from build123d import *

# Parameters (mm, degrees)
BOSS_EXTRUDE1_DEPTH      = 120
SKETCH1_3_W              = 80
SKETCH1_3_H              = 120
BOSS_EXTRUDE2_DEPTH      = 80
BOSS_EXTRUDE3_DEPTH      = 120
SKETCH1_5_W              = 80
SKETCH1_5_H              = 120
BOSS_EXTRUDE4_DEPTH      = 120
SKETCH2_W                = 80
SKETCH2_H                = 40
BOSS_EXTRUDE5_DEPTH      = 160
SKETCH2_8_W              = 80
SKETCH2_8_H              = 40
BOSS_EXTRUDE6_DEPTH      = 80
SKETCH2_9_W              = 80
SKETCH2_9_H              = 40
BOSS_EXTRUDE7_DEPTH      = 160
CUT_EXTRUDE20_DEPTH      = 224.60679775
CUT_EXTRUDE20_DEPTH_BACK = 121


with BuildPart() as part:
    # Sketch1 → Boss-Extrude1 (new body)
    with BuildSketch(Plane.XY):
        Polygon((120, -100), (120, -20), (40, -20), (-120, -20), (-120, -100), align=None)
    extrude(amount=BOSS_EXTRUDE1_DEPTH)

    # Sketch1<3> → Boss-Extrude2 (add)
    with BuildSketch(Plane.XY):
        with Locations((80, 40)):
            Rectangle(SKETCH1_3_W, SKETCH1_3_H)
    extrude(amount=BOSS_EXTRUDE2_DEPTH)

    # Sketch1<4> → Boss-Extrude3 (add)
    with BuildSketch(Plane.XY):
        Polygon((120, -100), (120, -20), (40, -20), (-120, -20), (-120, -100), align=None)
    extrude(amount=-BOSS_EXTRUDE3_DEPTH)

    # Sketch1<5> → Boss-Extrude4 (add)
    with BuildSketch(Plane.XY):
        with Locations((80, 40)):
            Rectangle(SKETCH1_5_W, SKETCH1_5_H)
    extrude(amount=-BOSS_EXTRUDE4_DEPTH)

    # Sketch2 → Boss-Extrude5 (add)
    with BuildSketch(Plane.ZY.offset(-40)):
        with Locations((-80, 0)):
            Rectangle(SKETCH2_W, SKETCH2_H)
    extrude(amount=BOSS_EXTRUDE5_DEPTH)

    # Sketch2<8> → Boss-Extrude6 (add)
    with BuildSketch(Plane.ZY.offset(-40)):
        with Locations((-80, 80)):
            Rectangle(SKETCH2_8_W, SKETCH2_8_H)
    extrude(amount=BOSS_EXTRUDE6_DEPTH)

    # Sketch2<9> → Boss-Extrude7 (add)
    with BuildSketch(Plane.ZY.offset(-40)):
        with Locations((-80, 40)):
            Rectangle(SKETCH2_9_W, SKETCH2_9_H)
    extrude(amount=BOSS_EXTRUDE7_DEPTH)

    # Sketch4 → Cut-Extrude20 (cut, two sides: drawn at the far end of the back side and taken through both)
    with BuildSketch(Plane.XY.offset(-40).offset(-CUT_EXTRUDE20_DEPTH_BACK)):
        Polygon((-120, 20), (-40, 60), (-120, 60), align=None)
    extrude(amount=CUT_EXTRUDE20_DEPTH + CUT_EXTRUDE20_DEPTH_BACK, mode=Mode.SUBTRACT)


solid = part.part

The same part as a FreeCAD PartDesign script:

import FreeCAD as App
import Part
import Sketcher
Q = App.Units.Quantity


def add_polygon(sketch, points):
    """Adds a closed chain of lines whose ends are joined by coincident constraints."""
    first, n = sketch.GeometryCount, len(points)
    for a, b in zip(points, points[1:] + points[:1]):
        sketch.addGeometry(Part.LineSegment(App.Vector(*a, 0), App.Vector(*b, 0)), False)
    for i in range(n):
        sketch.addConstraint(Sketcher.Constraint("Coincident", first + i, 2, first + (i + 1) % n, 1))

doc = App.newDocument("Part")
body = doc.addObject("PartDesign::Body", "Body")

# Sketch on XY plane
sketch1 = doc.addObject("Sketcher::SketchObject", "Sketch")
body.addObject(sketch1)
sketch1.AttachmentSupport = (doc.XY_Plane, [""])
sketch1.MapMode = "FlatFace"
add_polygon(sketch1, [(120, -100), (120, -20), (-120, -20), (-120, -100)])  # lines 0-3
sketch1.addConstraint(Sketcher.Constraint("Vertical", 0))
sketch1.addConstraint(Sketcher.Constraint("Horizontal", 1))
sketch1.addConstraint(Sketcher.Constraint("Vertical", 2))
sketch1.addConstraint(Sketcher.Constraint("Horizontal", 3))
sketch1.addConstraint(Sketcher.Constraint("DistanceX", 1, 2, 1, 1, Q("240 mm")))
sketch1.addConstraint(Sketcher.Constraint("DistanceY", 0, 1, 0, 2, Q("80 mm")))
sketch1.addConstraint(Sketcher.Constraint("DistanceX", -1, 1, 0, 2, Q("120 mm")))
sketch1.addConstraint(Sketcher.Constraint("DistanceY", 0, 2, -1, 1, Q("20 mm")))
pad1 = doc.addObject("PartDesign::Pad", "Pad")
body.addObject(pad1)
pad1.Profile = sketch1
pad1.Length = 120

# Sketch on XY plane
sketch2 = doc.addObject("Sketcher::SketchObject", "Sketch001")
body.addObject(sketch2)
sketch2.AttachmentSupport = (doc.XY_Plane, [""])
sketch2.MapMode = "FlatFace"
add_polygon(sketch2, [(40, 100), (40, -20), (120, -20), (120, 100)])  # lines 0-3
sketch2.addConstraint(Sketcher.Constraint("Vertical", 0))
sketch2.addConstraint(Sketcher.Constraint("Horizontal", 1))
sketch2.addConstraint(Sketcher.Constraint("Vertical", 2))
sketch2.addConstraint(Sketcher.Constraint("Horizontal", 3))
sketch2.addConstraint(Sketcher.Constraint("DistanceX", 1, 1, 1, 2, Q("80 mm")))
sketch2.addConstraint(Sketcher.Constraint("DistanceY", 0, 2, 0, 1, Q("120 mm")))
sketch2.addConstraint(Sketcher.Constraint("DistanceX", -1, 1, 0, 2, Q("40 mm")))
sketch2.addConstraint(Sketcher.Constraint("DistanceY", 0, 2, -1, 1, Q("20 mm")))
pad2 = doc.addObject("PartDesign::Pad", "Pad001")
body.addObject(pad2)
pad2.Profile = sketch2
pad2.Length = 80

# Sketch on XY plane
sketch3 = doc.addObject("Sketcher::SketchObject", "Sketch002")
body.addObject(sketch3)
sketch3.AttachmentSupport = (doc.XY_Plane, [""])
sketch3.MapMode = "FlatFace"
add_polygon(sketch3, [(120, -100), (120, -20), (-120, -20), (-120, -100)])  # lines 0-3
sketch3.addConstraint(Sketcher.Constraint("Vertical", 0))
sketch3.addConstraint(Sketcher.Constraint("Horizontal", 1))
sketch3.addConstraint(Sketcher.Constraint("Vertical", 2))
sketch3.addConstraint(Sketcher.Constraint("Horizontal", 3))
sketch3.addConstraint(Sketcher.Constraint("DistanceX", 1, 2, 1, 1, Q("240 mm")))
sketch3.addConstraint(Sketcher.Constraint("DistanceY", 0, 1, 0, 2, Q("80 mm")))
sketch3.addConstraint(Sketcher.Constraint("DistanceX", -1, 1, 0, 2, Q("120 mm")))
sketch3.addConstraint(Sketcher.Constraint("DistanceY", 0, 2, -1, 1, Q("20 mm")))
pad3 = doc.addObject("PartDesign::Pad", "Pad002")
body.addObject(pad3)
pad3.Profile = sketch3
pad3.Length = 120
pad3.Reversed = True

# Sketch on XY plane
sketch4 = doc.addObject("Sketcher::SketchObject", "Sketch003")
body.addObject(sketch4)
sketch4.AttachmentSupport = (doc.XY_Plane, [""])
sketch4.MapMode = "FlatFace"
add_polygon(sketch4, [(40, 100), (40, -20), (120, -20), (120, 100)])  # lines 0-3
sketch4.addConstraint(Sketcher.Constraint("Vertical", 0))
sketch4.addConstraint(Sketcher.Constraint("Horizontal", 1))
sketch4.addConstraint(Sketcher.Constraint("Vertical", 2))
sketch4.addConstraint(Sketcher.Constraint("Horizontal", 3))
sketch4.addConstraint(Sketcher.Constraint("DistanceX", 1, 1, 1, 2, Q("80 mm")))
sketch4.addConstraint(Sketcher.Constraint("DistanceY", 0, 2, 0, 1, Q("120 mm")))
sketch4.addConstraint(Sketcher.Constraint("DistanceX", -1, 1, 0, 2, Q("40 mm")))
sketch4.addConstraint(Sketcher.Constraint("DistanceY", 0, 2, -1, 1, Q("20 mm")))
pad4 = doc.addObject("PartDesign::Pad", "Pad003")
body.addObject(pad4)
pad4.Profile = sketch4
pad4.Length = 120
pad4.Reversed = True

# Sketch on YZ plane
sketch5 = doc.addObject("Sketcher::SketchObject", "Sketch004")
body.addObject(sketch5)
sketch5.AttachmentSupport = (doc.YZ_Plane, [""])
sketch5.MapMode = "FlatFace"
sketch5.AttachmentOffset = App.Placement(App.Vector(0, 0, 40), App.Rotation())
add_polygon(sketch5, [(20, -120), (-20, -120), (-20, -40), (20, -40)])  # lines 0-3
sketch5.addConstraint(Sketcher.Constraint("Horizontal", 0))
sketch5.addConstraint(Sketcher.Constraint("Vertical", 1))
sketch5.addConstraint(Sketcher.Constraint("Horizontal", 2))
sketch5.addConstraint(Sketcher.Constraint("Vertical", 3))
sketch5.addConstraint(Sketcher.Constraint("DistanceX", 0, 2, 0, 1, Q("40 mm")))
sketch5.addConstraint(Sketcher.Constraint("DistanceY", 1, 1, 1, 2, Q("80 mm")))
sketch5.addConstraint(Sketcher.Constraint("DistanceX", 0, 2, -1, 1, Q("20 mm")))
sketch5.addConstraint(Sketcher.Constraint("DistanceY", 0, 2, -1, 1, Q("120 mm")))
pad5 = doc.addObject("PartDesign::Pad", "Pad004")
body.addObject(pad5)
pad5.Profile = sketch5
pad5.Length = 160
pad5.Reversed = True

# Sketch on YZ plane
sketch6 = doc.addObject("Sketcher::SketchObject", "Sketch005")
body.addObject(sketch6)
sketch6.AttachmentSupport = (doc.YZ_Plane, [""])
sketch6.MapMode = "FlatFace"
sketch6.AttachmentOffset = App.Placement(App.Vector(0, 0, 40), App.Rotation())
add_polygon(sketch6, [(100, -120), (60, -120), (60, -40), (100, -40)])  # lines 0-3
sketch6.addConstraint(Sketcher.Constraint("Horizontal", 0))
sketch6.addConstraint(Sketcher.Constraint("Vertical", 1))
sketch6.addConstraint(Sketcher.Constraint("Horizontal", 2))
sketch6.addConstraint(Sketcher.Constraint("Vertical", 3))
sketch6.addConstraint(Sketcher.Constraint("DistanceX", 0, 2, 0, 1, Q("40 mm")))
sketch6.addConstraint(Sketcher.Constraint("DistanceY", 1, 1, 1, 2, Q("80 mm")))
sketch6.addConstraint(Sketcher.Constraint("DistanceX", -1, 1, 0, 2, Q("60 mm")))
sketch6.addConstraint(Sketcher.Constraint("DistanceY", 0, 2, -1, 1, Q("120 mm")))
pad6 = doc.addObject("PartDesign::Pad", "Pad005")
body.addObject(pad6)
pad6.Profile = sketch6
pad6.Length = 80
pad6.Reversed = True

# Sketch on YZ plane
sketch7 = doc.addObject("Sketcher::SketchObject", "Sketch006")
body.addObject(sketch7)
sketch7.AttachmentSupport = (doc.YZ_Plane, [""])
sketch7.MapMode = "FlatFace"
sketch7.AttachmentOffset = App.Placement(App.Vector(0, 0, 40), App.Rotation())
add_polygon(sketch7, [(60, -120), (20, -120), (20, -40), (60, -40)])  # lines 0-3
sketch7.addConstraint(Sketcher.Constraint("Horizontal", 0))
sketch7.addConstraint(Sketcher.Constraint("Vertical", 1))
sketch7.addConstraint(Sketcher.Constraint("Horizontal", 2))
sketch7.addConstraint(Sketcher.Constraint("Vertical", 3))
sketch7.addConstraint(Sketcher.Constraint("DistanceX", 0, 2, 0, 1, Q("40 mm")))
sketch7.addConstraint(Sketcher.Constraint("DistanceY", 1, 1, 1, 2, Q("80 mm")))
sketch7.addConstraint(Sketcher.Constraint("DistanceX", -1, 1, 0, 2, Q("20 mm")))
sketch7.addConstraint(Sketcher.Constraint("DistanceY", 0, 2, -1, 1, Q("120 mm")))
pad7 = doc.addObject("PartDesign::Pad", "Pad006")
body.addObject(pad7)
pad7.Profile = sketch7
pad7.Length = 160
pad7.Reversed = True

# Sketch on XY plane
sketch8 = doc.addObject("Sketcher::SketchObject", "Sketch007")
body.addObject(sketch8)
sketch8.AttachmentSupport = (doc.XY_Plane, [""])
sketch8.MapMode = "FlatFace"
sketch8.AttachmentOffset = App.Placement(App.Vector(0, 0, -40), App.Rotation())
add_polygon(sketch8, [(-120, 20), (-40, 60), (-120, 60)])  # lines 0-2
sketch8.addConstraint(Sketcher.Constraint("Horizontal", 1))
sketch8.addConstraint(Sketcher.Constraint("Vertical", 2))
sketch8.addConstraint(Sketcher.Constraint("DistanceX", 1, 2, 1, 1, Q("80 mm")))
sketch8.addConstraint(Sketcher.Constraint("DistanceY", 2, 2, 2, 1, Q("40 mm")))
sketch8.addConstraint(Sketcher.Constraint("DistanceX", 0, 2, -1, 1, Q("40 mm")))
sketch8.addConstraint(Sketcher.Constraint("DistanceY", -1, 1, 0, 2, Q("60 mm")))
pocket1 = doc.addObject("PartDesign::Pocket", "Pocket")
body.addObject(pocket1)
pocket1.Profile = sketch8
pocket1.Type = "ThroughAll"
pocket1.Midplane = True

doc.recompute()
